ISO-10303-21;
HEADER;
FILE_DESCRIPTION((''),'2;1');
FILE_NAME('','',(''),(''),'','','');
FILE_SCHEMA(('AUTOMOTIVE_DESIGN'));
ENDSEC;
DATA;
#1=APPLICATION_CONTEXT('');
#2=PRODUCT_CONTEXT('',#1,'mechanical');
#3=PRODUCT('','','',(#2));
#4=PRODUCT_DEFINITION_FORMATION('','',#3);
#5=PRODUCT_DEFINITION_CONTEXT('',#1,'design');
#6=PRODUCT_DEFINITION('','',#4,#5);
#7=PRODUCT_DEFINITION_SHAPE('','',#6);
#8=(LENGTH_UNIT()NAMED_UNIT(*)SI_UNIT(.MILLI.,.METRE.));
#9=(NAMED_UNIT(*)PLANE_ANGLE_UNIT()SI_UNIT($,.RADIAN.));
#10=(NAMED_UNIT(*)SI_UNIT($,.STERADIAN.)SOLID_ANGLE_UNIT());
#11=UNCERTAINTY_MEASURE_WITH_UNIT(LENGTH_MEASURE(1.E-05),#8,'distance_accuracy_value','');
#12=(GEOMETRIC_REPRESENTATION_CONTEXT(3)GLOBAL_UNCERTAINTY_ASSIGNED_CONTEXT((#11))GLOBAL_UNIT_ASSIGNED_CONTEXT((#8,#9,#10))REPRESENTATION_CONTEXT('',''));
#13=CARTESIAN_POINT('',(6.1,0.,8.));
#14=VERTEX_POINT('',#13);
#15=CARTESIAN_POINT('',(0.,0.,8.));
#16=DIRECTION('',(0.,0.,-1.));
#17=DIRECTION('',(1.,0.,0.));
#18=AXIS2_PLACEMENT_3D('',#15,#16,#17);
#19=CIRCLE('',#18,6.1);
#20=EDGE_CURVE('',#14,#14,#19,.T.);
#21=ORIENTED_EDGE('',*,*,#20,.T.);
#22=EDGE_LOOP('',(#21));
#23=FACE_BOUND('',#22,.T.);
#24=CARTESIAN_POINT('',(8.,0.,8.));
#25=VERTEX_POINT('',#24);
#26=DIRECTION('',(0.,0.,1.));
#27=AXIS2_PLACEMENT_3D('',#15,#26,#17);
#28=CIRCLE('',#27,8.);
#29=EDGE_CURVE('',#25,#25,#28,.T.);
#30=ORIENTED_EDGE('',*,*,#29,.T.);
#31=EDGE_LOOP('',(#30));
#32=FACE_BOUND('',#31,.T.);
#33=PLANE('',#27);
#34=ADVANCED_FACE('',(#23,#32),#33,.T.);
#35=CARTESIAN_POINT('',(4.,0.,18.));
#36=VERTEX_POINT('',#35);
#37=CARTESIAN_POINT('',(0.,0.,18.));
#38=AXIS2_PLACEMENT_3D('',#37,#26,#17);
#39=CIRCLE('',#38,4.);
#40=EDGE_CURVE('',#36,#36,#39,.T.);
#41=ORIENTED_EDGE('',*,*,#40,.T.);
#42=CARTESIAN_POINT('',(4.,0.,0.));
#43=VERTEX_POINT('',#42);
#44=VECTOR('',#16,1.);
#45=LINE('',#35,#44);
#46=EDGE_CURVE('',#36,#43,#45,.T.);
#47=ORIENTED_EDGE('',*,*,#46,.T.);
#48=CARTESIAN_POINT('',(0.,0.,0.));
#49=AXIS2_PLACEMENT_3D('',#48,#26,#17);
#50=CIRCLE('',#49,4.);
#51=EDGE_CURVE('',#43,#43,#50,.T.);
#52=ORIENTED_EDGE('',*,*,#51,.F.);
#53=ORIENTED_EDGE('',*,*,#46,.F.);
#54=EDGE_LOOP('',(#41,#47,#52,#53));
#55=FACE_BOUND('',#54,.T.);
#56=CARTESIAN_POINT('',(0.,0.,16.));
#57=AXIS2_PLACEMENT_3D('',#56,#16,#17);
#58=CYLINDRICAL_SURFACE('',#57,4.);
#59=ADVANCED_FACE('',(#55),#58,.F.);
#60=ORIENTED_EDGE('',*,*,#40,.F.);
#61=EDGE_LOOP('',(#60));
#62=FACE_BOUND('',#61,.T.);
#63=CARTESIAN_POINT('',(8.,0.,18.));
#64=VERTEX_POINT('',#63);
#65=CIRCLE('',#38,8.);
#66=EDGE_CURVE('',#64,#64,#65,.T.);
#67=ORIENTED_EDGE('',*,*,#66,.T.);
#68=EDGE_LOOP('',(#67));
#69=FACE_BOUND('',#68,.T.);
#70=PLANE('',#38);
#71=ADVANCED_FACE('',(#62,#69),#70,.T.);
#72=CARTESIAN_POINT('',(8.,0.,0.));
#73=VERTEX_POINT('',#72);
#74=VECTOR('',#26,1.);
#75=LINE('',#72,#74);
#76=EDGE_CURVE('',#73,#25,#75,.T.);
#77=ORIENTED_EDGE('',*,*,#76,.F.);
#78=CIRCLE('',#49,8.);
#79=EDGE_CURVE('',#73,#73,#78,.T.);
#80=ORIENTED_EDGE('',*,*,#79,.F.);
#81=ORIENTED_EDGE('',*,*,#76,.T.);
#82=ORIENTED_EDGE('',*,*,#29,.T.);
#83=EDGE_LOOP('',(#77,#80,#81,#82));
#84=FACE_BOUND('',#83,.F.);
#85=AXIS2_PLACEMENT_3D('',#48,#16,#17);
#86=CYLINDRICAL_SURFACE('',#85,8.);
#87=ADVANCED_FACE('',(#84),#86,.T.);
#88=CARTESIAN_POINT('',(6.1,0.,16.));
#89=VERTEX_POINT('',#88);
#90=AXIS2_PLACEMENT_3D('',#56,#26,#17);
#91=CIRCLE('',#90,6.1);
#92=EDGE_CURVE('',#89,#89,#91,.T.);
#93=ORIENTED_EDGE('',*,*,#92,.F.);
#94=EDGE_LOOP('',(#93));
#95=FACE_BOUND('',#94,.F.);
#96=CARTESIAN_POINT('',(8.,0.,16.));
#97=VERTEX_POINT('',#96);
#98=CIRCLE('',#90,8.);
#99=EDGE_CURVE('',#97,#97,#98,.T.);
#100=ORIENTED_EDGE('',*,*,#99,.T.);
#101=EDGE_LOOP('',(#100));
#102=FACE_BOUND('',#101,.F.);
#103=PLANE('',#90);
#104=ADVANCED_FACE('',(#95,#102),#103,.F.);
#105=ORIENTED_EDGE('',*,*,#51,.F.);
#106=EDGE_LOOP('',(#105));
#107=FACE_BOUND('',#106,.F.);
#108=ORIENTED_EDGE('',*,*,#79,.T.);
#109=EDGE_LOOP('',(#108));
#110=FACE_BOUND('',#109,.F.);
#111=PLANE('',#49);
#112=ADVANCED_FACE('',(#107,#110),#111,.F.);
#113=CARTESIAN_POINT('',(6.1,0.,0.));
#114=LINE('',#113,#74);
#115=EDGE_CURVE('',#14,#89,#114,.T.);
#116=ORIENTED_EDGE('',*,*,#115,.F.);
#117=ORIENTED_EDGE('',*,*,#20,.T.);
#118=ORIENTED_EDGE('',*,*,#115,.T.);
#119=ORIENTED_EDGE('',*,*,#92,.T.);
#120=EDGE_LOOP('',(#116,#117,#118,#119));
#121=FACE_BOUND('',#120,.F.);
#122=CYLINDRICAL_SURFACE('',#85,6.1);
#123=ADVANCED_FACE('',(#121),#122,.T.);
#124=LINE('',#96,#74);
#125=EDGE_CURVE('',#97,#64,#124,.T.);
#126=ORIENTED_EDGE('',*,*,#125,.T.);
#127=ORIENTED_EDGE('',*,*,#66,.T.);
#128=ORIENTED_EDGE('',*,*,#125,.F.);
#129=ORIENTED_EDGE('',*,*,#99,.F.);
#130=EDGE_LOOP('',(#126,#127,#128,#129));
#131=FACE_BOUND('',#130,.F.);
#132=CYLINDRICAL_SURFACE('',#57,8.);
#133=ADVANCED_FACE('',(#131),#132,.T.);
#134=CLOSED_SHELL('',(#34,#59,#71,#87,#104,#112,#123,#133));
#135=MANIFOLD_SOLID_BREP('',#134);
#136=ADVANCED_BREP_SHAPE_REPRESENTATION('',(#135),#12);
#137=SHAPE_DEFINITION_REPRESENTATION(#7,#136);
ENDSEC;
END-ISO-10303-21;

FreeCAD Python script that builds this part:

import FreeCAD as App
import Part
import Sketcher

V = App.Vector
Q = App.Units.Quantity

doc = App.newDocument("Part")
body = doc.addObject("PartDesign::Body", "Body")

sketch1 = body.newObject("Sketcher::SketchObject", "Sketch")
sketch1.AttachmentSupport = (doc.getObject("XY_Plane"), [""])
sketch1.MapMode = "FlatFace"
sketch1.addGeometry(Part.Circle(V(0, 0, 0), V(0, 0, 1), 8), False)
sketch1.addGeometry(Part.Circle(V(0, 0, 0), V(0, 0, 1), 4), False)
sketch1.addConstraint(Sketcher.Constraint("Coincident", 0, 3, -1, 1))
sketch1.addConstraint(Sketcher.Constraint("Coincident", 1, 3, -1, 1))
sketch1.addConstraint(Sketcher.Constraint("Diameter", 0, Q("16 mm")))
sketch1.addConstraint(Sketcher.Constraint("Diameter", 1, Q("8 mm")))
pad1 = body.newObject("PartDesign::Pad", "Pad")
pad1.Profile = sketch1
pad1.Length = 8

sketch2 = body.newObject("Sketcher::SketchObject", "Sketch001")
sketch2.AttachmentSupport = (doc.getObject("XY_Plane"), [""])
sketch2.MapMode = "FlatFace"
sketch2.addGeometry(Part.Circle(V(0, 0, 0), V(0, 0, 1), 6.1), False)
sketch2.addGeometry(Part.Circle(V(0, 0, 0), V(0, 0, 1), 4), False)
sketch2.addConstraint(Sketcher.Constraint("Coincident", 0, 3, -1, 1))
sketch2.addConstraint(Sketcher.Constraint("Coincident", 1, 3, -1, 1))
sketch2.addConstraint(Sketcher.Constraint("Diameter", 1, Q("8 mm")))
sketch2.addConstraint(Sketcher.Constraint("Diameter", 0, Q("12.2 mm")))
pad2 = body.newObject("PartDesign::Pad", "Pad001")
pad2.Profile = sketch2
pad2.Length = 16

sketch3 = body.newObject("Sketcher::SketchObject", "Sketch002")
sketch3.AttachmentSupport = (doc.getObject("XY_Plane"), [""])
sketch3.MapMode = "FlatFace"
sketch3.AttachmentOffset = App.Placement(V(0, 0, 16), App.Rotation())
sketch3.addGeometry(Part.Circle(V(0, 0, 0), V(0, 0, 1), 8), False)
sketch3.addGeometry(Part.Circle(V(0, 0, 0), V(0, 0, 1), 4), False)
sketch3.addConstraint(Sketcher.Constraint("Coincident", 0, 3, -1, 1))
sketch3.addConstraint(Sketcher.Constraint("Coincident", 1, 3, -1, 1))
sketch3.addConstraint(Sketcher.Constraint("Diameter", 0, Q("16 mm")))
sketch3.addConstraint(Sketcher.Constraint("Diameter", 1, Q("8 mm")))
pad3 = body.newObject("PartDesign::Pad", "Pad002")
pad3.Profile = sketch3
pad3.Length = 2

doc.recompute()
